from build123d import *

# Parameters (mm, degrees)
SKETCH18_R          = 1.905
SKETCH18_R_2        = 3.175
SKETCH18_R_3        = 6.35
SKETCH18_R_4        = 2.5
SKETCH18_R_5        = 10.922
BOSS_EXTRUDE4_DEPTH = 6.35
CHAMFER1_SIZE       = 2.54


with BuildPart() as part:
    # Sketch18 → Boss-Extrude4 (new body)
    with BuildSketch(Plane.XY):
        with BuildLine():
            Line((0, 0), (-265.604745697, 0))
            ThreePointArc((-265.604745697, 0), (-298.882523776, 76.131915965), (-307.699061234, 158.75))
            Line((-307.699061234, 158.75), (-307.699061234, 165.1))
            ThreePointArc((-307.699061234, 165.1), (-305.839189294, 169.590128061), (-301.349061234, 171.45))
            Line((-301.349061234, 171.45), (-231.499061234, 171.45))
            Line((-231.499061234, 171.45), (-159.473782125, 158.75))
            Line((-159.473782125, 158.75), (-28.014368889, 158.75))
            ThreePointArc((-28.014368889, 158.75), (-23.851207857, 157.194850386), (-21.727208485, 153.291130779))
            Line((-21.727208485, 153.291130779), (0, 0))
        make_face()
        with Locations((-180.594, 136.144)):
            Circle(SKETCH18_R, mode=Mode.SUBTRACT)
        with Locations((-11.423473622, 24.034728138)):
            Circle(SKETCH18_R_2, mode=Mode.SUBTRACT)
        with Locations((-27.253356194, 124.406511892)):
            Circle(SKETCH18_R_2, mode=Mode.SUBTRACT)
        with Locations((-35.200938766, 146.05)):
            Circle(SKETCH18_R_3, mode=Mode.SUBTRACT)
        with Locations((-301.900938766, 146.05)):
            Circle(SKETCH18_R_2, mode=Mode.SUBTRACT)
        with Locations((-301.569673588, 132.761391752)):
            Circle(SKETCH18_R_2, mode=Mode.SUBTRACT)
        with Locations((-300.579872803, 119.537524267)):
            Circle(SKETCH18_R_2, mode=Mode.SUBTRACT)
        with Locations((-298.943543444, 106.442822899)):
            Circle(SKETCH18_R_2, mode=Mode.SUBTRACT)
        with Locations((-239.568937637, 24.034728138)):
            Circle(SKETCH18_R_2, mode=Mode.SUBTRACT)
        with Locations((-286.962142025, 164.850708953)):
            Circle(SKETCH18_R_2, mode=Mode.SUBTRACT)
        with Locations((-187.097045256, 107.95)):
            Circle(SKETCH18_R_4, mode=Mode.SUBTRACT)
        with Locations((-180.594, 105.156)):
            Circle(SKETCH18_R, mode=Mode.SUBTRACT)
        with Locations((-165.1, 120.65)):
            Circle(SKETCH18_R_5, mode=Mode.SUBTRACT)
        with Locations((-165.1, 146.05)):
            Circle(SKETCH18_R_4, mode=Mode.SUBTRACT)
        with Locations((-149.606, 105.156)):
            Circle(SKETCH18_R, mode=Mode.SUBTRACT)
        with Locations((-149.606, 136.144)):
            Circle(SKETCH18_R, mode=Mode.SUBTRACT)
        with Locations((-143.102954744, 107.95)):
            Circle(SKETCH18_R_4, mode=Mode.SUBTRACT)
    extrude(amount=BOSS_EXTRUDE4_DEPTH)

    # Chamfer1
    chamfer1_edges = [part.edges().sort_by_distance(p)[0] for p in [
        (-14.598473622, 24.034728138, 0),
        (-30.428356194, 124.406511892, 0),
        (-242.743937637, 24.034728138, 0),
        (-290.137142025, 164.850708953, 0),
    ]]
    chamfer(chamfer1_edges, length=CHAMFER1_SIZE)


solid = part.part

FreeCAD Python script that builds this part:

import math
import FreeCAD as App
import Part
import Sketcher
Q = App.Units.Quantity


def edges_at(feature, points):
    """Names of the edges that pass closest to the given points."""
    edges = feature.Shape.Edges
    near = lambda p: min(range(len(edges)), key=lambda i: edges[i].distToShape(Part.Vertex(*p))[0])
    return sorted({f"Edge{near(p) + 1}" for p in points})

doc = App.newDocument("Part")
body = doc.addObject("PartDesign::Body", "Body")

# Sketch on XY plane
sketch1 = doc.addObject("Sketcher::SketchObject", "Sketch")
body.addObject(sketch1)
sketch1.AttachmentSupport = (doc.XY_Plane, [""])
sketch1.MapMode = "FlatFace"
sketch1.addGeometry(Part.LineSegment(App.Vector(-265.6, 0, 0), App.Vector(0, 0, 0)), False)
sketch1.addGeometry(Part.LineSegment(App.Vector(0, 0, 0), App.Vector(-21.7, 153.3, 0)), False)
sketch1.addGeometry(Part.ArcOfCircle(Part.Circle(App.Vector(-28, 152.4, 0), App.Vector(0, 0, 1), 6.4), math.radians(8), math.radians(90)), False)
sketch1.addGeometry(Part.LineSegment(App.Vector(-28, 158.8, 0), App.Vector(-159.5, 158.8, 0)), False)
sketch1.addGeometry(Part.LineSegment(App.Vector(-159.5, 158.8, 0), App.Vector(-231.5, 171.4, 0)), False)
sketch1.addGeometry(Part.LineSegment(App.Vector(-231.5, 171.4, 0), App.Vector(-301.3, 171.4, 0)), False)
sketch1.addGeometry(Part.ArcOfCircle(Part.Circle(App.Vector(-301.3, 165.1, 0), App.Vector(0, 0, 1), 6.3), math.radians(90), math.radians(180)), False)
sketch1.addGeometry(Part.LineSegment(App.Vector(-307.7, 165.1, 0), App.Vector(-307.7, 158.8, 0)), False)
sketch1.addGeometry(Part.ArcOfCircle(Part.Circle(App.Vector(-35.2, 146.1, 0), App.Vector(0, 0, 1), 272.8), math.radians(177), math.radians(212)), False)
sketch1.addGeometry(Part.Circle(App.Vector(-11.4, 24, 0), App.Vector(0, 0, 1), 3.2), False)
sketch1.addGeometry(Part.Circle(App.Vector(-239.6, 24, 0), App.Vector(0, 0, 1), 3.2), False)
sketch1.addGeometry(Part.Circle(App.Vector(-27.3, 124.4, 0), App.Vector(0, 0, 1), 3.2), False)
sketch1.addGeometry(Part.Circle(App.Vector(-143.1, 108, 0), App.Vector(0, 0, 1), 2.5), False)
sketch1.addGeometry(Part.Circle(App.Vector(-149.6, 105.2, 0), App.Vector(0, 0, 1), 1.9), False)
sketch1.addGeometry(Part.Circle(App.Vector(-35.2, 146.1, 0), App.Vector(0, 0, 1), 6.3), False)
sketch1.addGeometry(Part.Circle(App.Vector(-149.6, 136.1, 0), App.Vector(0, 0, 1), 1.9), False)
sketch1.addGeometry(Part.Circle(App.Vector(-180.6, 105.2, 0), App.Vector(0, 0, 1), 1.9), False)
sketch1.addGeometry(Part.Circle(App.Vector(-187.1, 108, 0), App.Vector(0, 0, 1), 2.5), False)
sketch1.addGeometry(Part.Circle(App.Vector(-165.1, 120.7, 0), App.Vector(0, 0, 1), 10.9), False)
sketch1.addGeometry(Part.Circle(App.Vector(-298.9, 106.4, 0), App.Vector(0, 0, 1), 3.2), False)
sketch1.addGeometry(Part.Circle(App.Vector(-300.6, 119.5, 0), App.Vector(0, 0, 1), 3.2), False)
sketch1.addGeometry(Part.Circle(App.Vector(-180.6, 136.1, 0), App.Vector(0, 0, 1), 1.9), False)
sketch1.addGeometry(Part.Circle(App.Vector(-165.1, 146.1, 0), App.Vector(0, 0, 1), 2.5), False)
sketch1.addGeometry(Part.Circle(App.Vector(-301.6, 132.8, 0), App.Vector(0, 0, 1), 3.2), False)
sketch1.addGeometry(Part.Circle(App.Vector(-301.9, 146.1, 0), App.Vector(0, 0, 1), 3.2), False)
sketch1.addGeometry(Part.Circle(App.Vector(-287, 164.9, 0), App.Vector(0, 0, 1), 3.2), False)
sketch1.addConstraint(Sketcher.Constraint("Coincident", 0, 2, 1, 1))
sketch1.addConstraint(Sketcher.Constraint("Tangent", 1, 2, 2, 1))
sketch1.addConstraint(Sketcher.Constraint("Tangent", 2, 2, 3, 1))
sketch1.addConstraint(Sketcher.Constraint("Coincident", 3, 2, 4, 1))
sketch1.addConstraint(Sketcher.Constraint("Coincident", 4, 2, 5, 1))
sketch1.addConstraint(Sketcher.Constraint("Tangent", 5, 2, 6, 1))
sketch1.addConstraint(Sketcher.Constraint("Tangent", 6, 2, 7, 1))
sketch1.addConstraint(Sketcher.Constraint("Coincident", 7, 2, 8, 1))
sketch1.addConstraint(Sketcher.Constraint("Coincident", 8, 2, 0, 1))
sketch1.addConstraint(Sketcher.Constraint("Horizontal", 0))
sketch1.addConstraint(Sketcher.Constraint("Horizontal", 3))
sketch1.addConstraint(Sketcher.Constraint("Horizontal", 5))
sketch1.addConstraint(Sketcher.Constraint("Vertical", 7))
sketch1.addConstraint(Sketcher.Constraint("Coincident", 0, 2, -1, 1))
sketch1.addConstraint(Sketcher.Constraint("Coincident", 14, 3, 8, 3))
sketch1.addConstraint(Sketcher.Constraint("Equal", 2, 6))
sketch1.addConstraint(Sketcher.Constraint("Equal", 9, 10))
sketch1.addConstraint(Sketcher.Constraint("Equal", 10, 11))
sketch1.addConstraint(Sketcher.Constraint("Equal", 6, 14))
sketch1.addConstraint(Sketcher.Constraint("Equal", 13, 15))
sketch1.addConstraint(Sketcher.Constraint("Equal", 15, 16))
sketch1.addConstraint(Sketcher.Constraint("Equal", 12, 17))
sketch1.addConstraint(Sketcher.Constraint("Equal", 11, 19))
sketch1.addConstraint(Sketcher.Constraint("Equal", 19, 20))
sketch1.addConstraint(Sketcher.Constraint("Equal", 16, 21))
sketch1.addConstraint(Sketcher.Constraint("Equal", 17, 22))
sketch1.addConstraint(Sketcher.Constraint("Equal", 20, 23))
sketch1.addConstraint(Sketcher.Constraint("Equal", 23, 24))
sketch1.addConstraint(Sketcher.Constraint("Equal", 24, 25))
sketch1.addConstraint(Sketcher.Constraint("Horizontal", 9, 3, 10, 3))
sketch1.addConstraint(Sketcher.Constraint("Horizontal", 13, 3, 16, 3))
sketch1.addConstraint(Sketcher.Constraint("Horizontal", 12, 3, 17, 3))
sketch1.addConstraint(Sketcher.Constraint("Horizontal", 15, 3, 21, 3))
sketch1.addConstraint(Sketcher.Constraint("Horizontal", 14, 3, 22, 3))
sketch1.addConstraint(Sketcher.Constraint("Horizontal", 22, 3, 24, 3))
sketch1.addConstraint(Sketcher.Constraint("Horizontal", 3, 2, 7, 2))
sketch1.addConstraint(Sketcher.Constraint("Vertical", 13, 3, 15, 3))
sketch1.addConstraint(Sketcher.Constraint("Vertical", 16, 3, 21, 3))
sketch1.addConstraint(Sketcher.Constraint("Vertical", 18, 3, 22, 3))
sketch1.addConstraint(Sketcher.Constraint("Diameter", 14, Q("0.5 in")))
sketch1.addConstraint(Sketcher.Constraint("Diameter", 9, Q("0.25 in")))
sketch1.addConstraint(Sketcher.Constraint("Diameter", 13, Q("0.15 in")))
sketch1.addConstraint(Sketcher.Constraint("Diameter", 18, Q("0.86 in")))
sketch1.addConstraint(Sketcher.Constraint("DistanceY", -1, 1, 2, 3, Q("6 in")))
sketch1.addConstraint(Sketcher.Constraint("Angle", 4, Q("170 deg")))
sketch1.addConstraint(Sketcher.Constraint("DistanceY", 18, 3, 22, 3, Q("1 in")))
sketch1.addConstraint(Sketcher.Constraint("DistanceY", 12, 3, 3, 2, Q("2 in")))
sketch1.addConstraint(Sketcher.Constraint("DistanceY", 22, 3, 4, 2, Q("1 in")))
sketch1.addConstraint(Sketcher.Constraint("DistanceX", 5, 2, 5, 1, Q("2.75 in")))
sketch1.addConstraint(Sketcher.Constraint("DistanceY", 7, 2, 7, 1, Q("0.25 in")))
sketch1.addConstraint(Sketcher.Constraint("DistanceX", 18, 3, -1, 1, Q("6.5 in")))
sketch1.addConstraint(Sketcher.Constraint("Diameter", 12, 5.0))
sketch1.addConstraint(Sketcher.Constraint("DistanceX", 13, 3, -1, 1, Q("5.89 in")))
sketch1.addConstraint(Sketcher.Constraint("DistanceY", -1, 1, 13, 3, Q("4.14 in")))
sketch1.addConstraint(Sketcher.Constraint("DistanceY", -1, 1, 15, 3, Q("5.36 in")))
sketch1.addConstraint(Sketcher.Constraint("DistanceX", 16, 3, -1, 1, Q("7.11 in")))
sketch1.addConstraint(Sketcher.Constraint("Radius", 8, 272.793909))
sketch1.addConstraint(Sketcher.Constraint("DistanceX", 10, 3, 8, 3, 204.367999))
sketch1.addConstraint(Sketcher.Constraint("DistanceX", 12, 3, 11, 3, 115.849599))
sketch1.addConstraint(Sketcher.Constraint("DistanceX", 19, 3, 17, 3, 111.846498))
sketch1.addConstraint(Sketcher.Constraint("DistanceY", 19, 3, 20, 3, 13.094701))
sketch1.addConstraint(Sketcher.Constraint("DistanceX", 23, 3, 20, 3, 0.989801))
sketch1.addConstraint(Sketcher.Constraint("DistanceX", 19, 3, 25, 3, 11.981401))
sketch1.addConstraint(Sketcher.Constraint("DistanceX", 8, 2, 17, 3, 78.5077))
sketch1.addConstraint(Sketcher.Constraint("Distance", 1, 154.823262))
sketch1.addConstraint(Sketcher.Constraint("DistanceX", 0, 1, 0, 2, 265.604746))
sketch1.addConstraint(Sketcher.Constraint("DistanceY", -1, 1, 9, 3, 24.034728))
sketch1.addConstraint(Sketcher.Constraint("DistanceY", -1, 1, 11, 3, 124.406512))
sketch1.addConstraint(Sketcher.Constraint("DistanceY", -1, 1, 23, 3, 132.761392))
sketch1.addConstraint(Sketcher.Constraint("DistanceX", 24, 3, -1, 1, 301.900939))
sketch1.addConstraint(Sketcher.Constraint("DistanceY", -1, 1, 25, 3, 164.850709))
sketch1.addConstraint(Sketcher.Constraint("DistanceX", 10, 3, 11, 3, 212.315581))
sketch1.addConstraint(Sketcher.Constraint("DistanceX", 12, 3, 9, 3, 131.679481))
sketch1.addConstraint(Sketcher.Constraint("DistanceX", 20, 3, 19, 3, 1.636329))
sketch1.addConstraint(Sketcher.Constraint("DistanceY", 19, 3, 23, 3, 26.318569))
pad1 = doc.addObject("PartDesign::Pad", "Pad")
body.addObject(pad1)
pad1.Profile = sketch1
pad1.Length = Q("0.25 in")
doc.recompute()

chamfer = doc.addObject("PartDesign::Chamfer", "Chamfer")
body.addObject(chamfer)
chamfer.Base = (pad1, edges_at(pad1, [
    (-14.598, 24.035, 0),
    (-30.428, 124.407, 0),
    (-242.744, 24.035, 0),
    (-290.137, 164.851, 0),
]))
chamfer.Size = Q("0.1 in")

doc.recompute()
